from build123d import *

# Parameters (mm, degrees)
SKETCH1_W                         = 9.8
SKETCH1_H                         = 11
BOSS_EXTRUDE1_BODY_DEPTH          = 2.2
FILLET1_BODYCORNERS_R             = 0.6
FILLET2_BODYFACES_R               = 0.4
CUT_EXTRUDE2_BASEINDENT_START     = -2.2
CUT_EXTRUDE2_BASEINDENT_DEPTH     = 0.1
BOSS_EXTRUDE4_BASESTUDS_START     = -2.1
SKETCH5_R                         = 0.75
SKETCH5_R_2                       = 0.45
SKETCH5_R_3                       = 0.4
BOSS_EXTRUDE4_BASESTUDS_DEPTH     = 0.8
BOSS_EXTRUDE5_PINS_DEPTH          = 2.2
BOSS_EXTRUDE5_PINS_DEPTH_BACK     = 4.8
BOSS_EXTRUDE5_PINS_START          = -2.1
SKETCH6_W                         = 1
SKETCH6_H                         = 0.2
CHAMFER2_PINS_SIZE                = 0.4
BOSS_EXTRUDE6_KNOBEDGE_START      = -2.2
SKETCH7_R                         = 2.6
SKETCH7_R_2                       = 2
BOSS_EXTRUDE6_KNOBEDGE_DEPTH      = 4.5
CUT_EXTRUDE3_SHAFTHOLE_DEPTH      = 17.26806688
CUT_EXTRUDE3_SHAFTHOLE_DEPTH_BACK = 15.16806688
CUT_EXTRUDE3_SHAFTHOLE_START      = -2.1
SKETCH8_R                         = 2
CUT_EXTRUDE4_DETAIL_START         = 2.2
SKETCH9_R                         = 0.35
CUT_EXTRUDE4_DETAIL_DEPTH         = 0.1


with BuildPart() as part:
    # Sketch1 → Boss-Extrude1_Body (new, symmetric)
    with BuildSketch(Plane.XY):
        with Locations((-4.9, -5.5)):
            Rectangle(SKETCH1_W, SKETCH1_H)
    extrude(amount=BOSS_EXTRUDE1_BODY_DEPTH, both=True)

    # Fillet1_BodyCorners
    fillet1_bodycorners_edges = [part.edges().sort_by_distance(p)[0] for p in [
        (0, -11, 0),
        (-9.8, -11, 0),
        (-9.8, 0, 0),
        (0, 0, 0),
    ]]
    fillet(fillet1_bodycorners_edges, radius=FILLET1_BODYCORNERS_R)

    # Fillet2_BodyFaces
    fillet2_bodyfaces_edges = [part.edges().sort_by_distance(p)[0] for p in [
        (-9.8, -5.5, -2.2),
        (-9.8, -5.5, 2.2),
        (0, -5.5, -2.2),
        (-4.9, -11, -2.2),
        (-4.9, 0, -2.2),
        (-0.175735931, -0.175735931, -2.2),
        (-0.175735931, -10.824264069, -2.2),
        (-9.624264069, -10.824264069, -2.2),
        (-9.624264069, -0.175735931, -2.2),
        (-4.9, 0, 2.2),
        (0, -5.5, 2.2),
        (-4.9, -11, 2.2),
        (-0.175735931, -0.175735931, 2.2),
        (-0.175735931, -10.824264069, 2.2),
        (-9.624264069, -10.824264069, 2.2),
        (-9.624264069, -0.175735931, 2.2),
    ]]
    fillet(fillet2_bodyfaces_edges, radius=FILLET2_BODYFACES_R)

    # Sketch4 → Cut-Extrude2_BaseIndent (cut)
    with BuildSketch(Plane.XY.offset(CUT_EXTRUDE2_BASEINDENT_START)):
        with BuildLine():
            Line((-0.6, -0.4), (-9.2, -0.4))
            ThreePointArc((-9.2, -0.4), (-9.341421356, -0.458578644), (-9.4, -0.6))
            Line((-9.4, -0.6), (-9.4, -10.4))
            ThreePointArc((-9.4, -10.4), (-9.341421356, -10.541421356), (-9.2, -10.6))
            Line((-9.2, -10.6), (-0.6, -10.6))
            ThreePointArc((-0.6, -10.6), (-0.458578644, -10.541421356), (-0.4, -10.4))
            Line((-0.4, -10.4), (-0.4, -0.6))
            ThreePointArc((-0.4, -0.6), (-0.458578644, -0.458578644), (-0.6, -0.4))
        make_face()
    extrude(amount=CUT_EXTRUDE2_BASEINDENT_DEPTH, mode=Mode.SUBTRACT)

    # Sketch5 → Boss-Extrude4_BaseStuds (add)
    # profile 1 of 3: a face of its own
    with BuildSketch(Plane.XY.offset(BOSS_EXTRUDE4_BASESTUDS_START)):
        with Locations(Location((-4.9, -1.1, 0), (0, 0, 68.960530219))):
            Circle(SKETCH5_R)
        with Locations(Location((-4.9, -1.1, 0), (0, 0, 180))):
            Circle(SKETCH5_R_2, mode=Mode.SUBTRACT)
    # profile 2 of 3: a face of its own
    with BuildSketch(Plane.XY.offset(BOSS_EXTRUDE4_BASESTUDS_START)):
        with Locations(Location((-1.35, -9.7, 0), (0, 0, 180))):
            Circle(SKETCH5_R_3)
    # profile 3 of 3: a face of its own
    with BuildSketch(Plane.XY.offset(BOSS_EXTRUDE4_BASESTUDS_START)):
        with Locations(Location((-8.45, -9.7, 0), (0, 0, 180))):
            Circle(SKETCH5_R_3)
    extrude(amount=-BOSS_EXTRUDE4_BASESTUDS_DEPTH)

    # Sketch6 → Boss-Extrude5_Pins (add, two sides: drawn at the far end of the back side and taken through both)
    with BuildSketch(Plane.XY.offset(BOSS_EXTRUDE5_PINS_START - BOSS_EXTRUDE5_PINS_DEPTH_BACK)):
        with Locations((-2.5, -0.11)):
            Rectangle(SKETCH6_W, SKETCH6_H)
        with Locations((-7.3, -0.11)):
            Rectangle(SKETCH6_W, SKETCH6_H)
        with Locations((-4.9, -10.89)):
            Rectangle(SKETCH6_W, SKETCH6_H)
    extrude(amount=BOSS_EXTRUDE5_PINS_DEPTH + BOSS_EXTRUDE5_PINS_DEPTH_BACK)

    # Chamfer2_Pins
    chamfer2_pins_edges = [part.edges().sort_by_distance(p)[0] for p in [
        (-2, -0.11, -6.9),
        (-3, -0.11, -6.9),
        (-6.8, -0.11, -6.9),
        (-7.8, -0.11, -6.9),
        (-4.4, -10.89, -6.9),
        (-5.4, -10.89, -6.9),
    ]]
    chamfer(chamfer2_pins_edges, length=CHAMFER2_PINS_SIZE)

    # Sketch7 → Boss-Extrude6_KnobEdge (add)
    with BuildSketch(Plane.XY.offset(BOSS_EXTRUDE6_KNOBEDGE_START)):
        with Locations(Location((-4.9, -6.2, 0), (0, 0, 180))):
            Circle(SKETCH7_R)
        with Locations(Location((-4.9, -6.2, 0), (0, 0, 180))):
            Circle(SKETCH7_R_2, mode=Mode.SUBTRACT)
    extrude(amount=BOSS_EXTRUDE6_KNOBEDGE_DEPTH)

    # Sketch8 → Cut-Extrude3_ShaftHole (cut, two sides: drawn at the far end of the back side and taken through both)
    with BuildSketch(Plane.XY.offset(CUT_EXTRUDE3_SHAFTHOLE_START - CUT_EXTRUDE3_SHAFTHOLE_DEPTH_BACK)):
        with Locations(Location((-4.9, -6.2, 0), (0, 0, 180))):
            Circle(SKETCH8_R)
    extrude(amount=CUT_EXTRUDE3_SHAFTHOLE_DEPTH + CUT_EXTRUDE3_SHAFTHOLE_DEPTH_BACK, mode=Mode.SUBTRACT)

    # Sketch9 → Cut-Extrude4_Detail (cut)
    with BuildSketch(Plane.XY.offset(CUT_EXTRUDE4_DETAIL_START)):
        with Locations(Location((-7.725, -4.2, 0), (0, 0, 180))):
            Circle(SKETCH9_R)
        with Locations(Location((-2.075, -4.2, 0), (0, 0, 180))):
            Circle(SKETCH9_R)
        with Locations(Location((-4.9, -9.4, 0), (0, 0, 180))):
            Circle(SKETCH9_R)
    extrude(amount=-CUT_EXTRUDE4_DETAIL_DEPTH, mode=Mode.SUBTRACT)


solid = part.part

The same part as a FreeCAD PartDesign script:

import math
import FreeCAD as App
import Part
import Sketcher

V = App.Vector
Q = App.Units.Quantity


def edges_at(feature, points):
    """Names of the edges that pass closest to the given points."""
    edges = feature.Shape.Edges
    near = lambda p: min(range(len(edges)), key=lambda i: edges[i].distToShape(Part.Vertex(*p))[0])
    return sorted({f"Edge{near(p) + 1}" for p in points})


def add_polygon(sketch, points):
    """Adds a closed chain of lines whose ends are joined by coincident constraints."""
    first, n = sketch.GeometryCount, len(points)
    for a, b in zip(points, points[1:] + points[:1]):
        sketch.addGeometry(Part.LineSegment(App.Vector(*a, 0), App.Vector(*b, 0)), False)
    for i in range(n):
        sketch.addConstraint(Sketcher.Constraint("Coincident", first + i, 2, first + (i + 1) % n, 1))

doc = App.newDocument("Part")
params = doc.addObject("Spreadsheet::Sheet", "Params")
for row, (alias, value) in enumerate([
    ("sketch1_height", "11 mm"),
    ("sketch1_width", "9.8 mm"),
    ("pad1_length", "4.4 mm"),
    ("fillet_radius", "0.6 mm"),
    ("fillet2_radius", "0.4 mm"),
    ("sketch2_radius", "0.2 mm"),
    ("sketch2_width", "8.6 mm"),
    ("sketch2_height", "9.8 mm"),
    ("pocket1_length", "0.1 mm"),
    ("sketch3_diameter", "1.5 mm"),
    ("sketch3_diameter2", "0.9 mm"),
    ("sketch3_diameter3", "0.8 mm"),
    ("pad2_length", "0.8 mm"),
    ("sketch4_width", "1 mm"),
    ("sketch4_height", "0.2 mm"),
    ("pad3_length", "2.2 mm"),
    ("pad3_length2", "4.8 mm"),
    ("chamfer_size", "0.4 mm"),
    ("sketch5_diameter", "4 mm"),
    ("sketch5_diameter2", "5.2 mm"),
    ("pad4_length", "4.5 mm"),
    ("sketch6_diameter", "4 mm"),
    ("sketch7_diameter", "0.7 mm"),
    ("pocket3_length", "0.1 mm"),
], start=1):
    params.set(f"A{row}", alias)
    params.set(f"B{row}", "=" + value)
    params.setAlias(f"B{row}", alias)

body = doc.addObject("PartDesign::Body", "Body")

# Sketch on XY plane
sketch1 = doc.addObject("Sketcher::SketchObject", "Sketch")
body.addObject(sketch1)
sketch1.AttachmentSupport = (doc.XY_Plane, [""])
sketch1.MapMode = "FlatFace"
add_polygon(sketch1, [(-10, 0), (-10, -11), (0, -11), (0, 0)])  # lines 0-3
sketch1.addConstraint(Sketcher.Constraint("Vertical", 0))
sketch1.addConstraint(Sketcher.Constraint("Horizontal", 1))
sketch1.addConstraint(Sketcher.Constraint("Vertical", 2))
sketch1.addConstraint(Sketcher.Constraint("Horizontal", 3))
sketch1.addConstraint(Sketcher.Constraint("Coincident", 2, 2, -1, 1))
sketch1.addConstraint(Sketcher.Constraint("DistanceY", 0, 2, 0, 1, Q("11 mm")))
sketch1.addConstraint(Sketcher.Constraint("DistanceX", 1, 1, 1, 2, Q("9.8 mm")))
sketch1.setExpression("Constraints[9]", "Params.sketch1_height")
sketch1.setExpression("Constraints[10]", "Params.sketch1_width")
pad1 = doc.addObject("PartDesign::Pad", "Pad")
body.addObject(pad1)
pad1.Profile = sketch1
pad1.setExpression("Length", "Params.pad1_length")
pad1.Midplane = True
doc.recompute()

fillet = doc.addObject("PartDesign::Fillet", "Fillet")
body.addObject(fillet)
fillet.Base = (pad1, edges_at(pad1, [
    (0, -11, 0),
    (-9.8, -11, 0),
    (-9.8, 0, 0),
    (0, 0, 0),
]))
fillet.setExpression("Radius", "Params.fillet_radius")
doc.recompute()

fillet2 = doc.addObject("PartDesign::Fillet", "Fillet001")
body.addObject(fillet2)
fillet2.Base = (fillet, edges_at(fillet, [
    (-9.8, -5.5, -2.2),
    (-9.8, -5.5, 2.2),
    (0, -5.5, -2.2),
    (-4.9, -11, -2.2),
    (-4.9, 0, -2.2),
    (-0.176, -0.176, -2.2),
    (-0.176, -10.824, -2.2),
    (-9.624, -10.824, -2.2),
    (-9.624, -0.176, -2.2),
    (-4.9, 0, 2.2),
    (0, -5.5, 2.2),
    (-4.9, -11, 2.2),
    (-0.176, -0.176, 2.2),
    (-0.176, -10.824, 2.2),
    (-9.624, -10.824, 2.2),
    (-9.624, -0.176, 2.2),
]))
fillet2.setExpression("Radius", "Params.fillet2_radius")

# Sketch on XY plane
sketch2 = doc.addObject("Sketcher::SketchObject", "Sketch001")
body.addObject(sketch2)
sketch2.AttachmentSupport = (doc.XY_Plane, [""])
sketch2.MapMode = "FlatFace"
sketch2.AttachmentOffset = App.Placement(V(0, 0, -2.2), App.Rotation())
sketch2.addGeometry(Part.LineSegment(V(-0.6, -0.4, 0), V(-9.2, -0.4, 0)), False)
sketch2.addGeometry(Part.ArcOfCircle(Part.Circle(V(-9.2, -0.6, 0), V(0, 0, 1), 0.2), math.radians(90), math.radians(180)), False)
sketch2.addGeometry(Part.LineSegment(V(-9.4, -0.6, 0), V(-9.4, -10.4, 0)), False)
sketch2.addGeometry(Part.ArcOfCircle(Part.Circle(V(-9.2, -10.4, 0), V(0, 0, 1), 0.2), math.radians(-180), math.radians(-90)), False)
sketch2.addGeometry(Part.LineSegment(V(-9.2, -10.6, 0), V(-0.6, -10.6, 0)), False)
sketch2.addGeometry(Part.ArcOfCircle(Part.Circle(V(-0.6, -10.4, 0), V(0, 0, 1), 0.2), math.radians(-90), math.radians(0)), False)
sketch2.addGeometry(Part.LineSegment(V(-0.4, -10.4, 0), V(-0.4, -0.6, 0)), False)
sketch2.addGeometry(Part.ArcOfCircle(Part.Circle(V(-0.6, -0.6, 0), V(0, 0, 1), 0.2), math.radians(0), math.radians(90)), False)
sketch2.addConstraint(Sketcher.Constraint("Tangent", 0, 2, 1, 1))
sketch2.addConstraint(Sketcher.Constraint("Tangent", 1, 2, 2, 1))
sketch2.addConstraint(Sketcher.Constraint("Tangent", 2, 2, 3, 1))
sketch2.addConstraint(Sketcher.Constraint("Tangent", 3, 2, 4, 1))
sketch2.addConstraint(Sketcher.Constraint("Tangent", 4, 2, 5, 1))
sketch2.addConstraint(Sketcher.Constraint("Tangent", 5, 2, 6, 1))
sketch2.addConstraint(Sketcher.Constraint("Tangent", 6, 2, 7, 1))
sketch2.addConstraint(Sketcher.Constraint("Tangent", 7, 2, 0, 1))
sketch2.addConstraint(Sketcher.Constraint("Horizontal", 0))
sketch2.addConstraint(Sketcher.Constraint("Vertical", 2))
sketch2.addConstraint(Sketcher.Constraint("Horizontal", 4))
sketch2.addConstraint(Sketcher.Constraint("Vertical", 6))
sketch2.addConstraint(Sketcher.Constraint("Equal", 1, 3))
sketch2.addConstraint(Sketcher.Constraint("Equal", 3, 5))
sketch2.addConstraint(Sketcher.Constraint("Equal", 5, 7))
sketch2.addConstraint(Sketcher.Constraint("Radius", 1, Q("0.2 mm")))
sketch2.addConstraint(Sketcher.Constraint("DistanceX", 0, 2, 0, 1, Q("8.6 mm")))
sketch2.addConstraint(Sketcher.Constraint("DistanceY", 2, 2, 2, 1, Q("9.8 mm")))
sketch2.addConstraint(Sketcher.Constraint("DistanceX", 1, 3, -1, 1, Q("9.2 mm")))
sketch2.addConstraint(Sketcher.Constraint("DistanceY", 1, 3, -1, 1, Q("0.6 mm")))
sketch2.setExpression("Constraints[15]", "Params.sketch2_radius")
sketch2.setExpression("Constraints[16]", "Params.sketch2_width")
sketch2.setExpression("Constraints[17]", "Params.sketch2_height")
pocket1 = doc.addObject("PartDesign::Pocket", "Pocket")
body.addObject(pocket1)
pocket1.Profile = sketch2
pocket1.setExpression("Length", "Params.pocket1_length")
pocket1.Reversed = True

# Sketch on XY plane
sketch3 = doc.addObject("Sketcher::SketchObject", "Sketch002")
body.addObject(sketch3)
sketch3.AttachmentSupport = (doc.XY_Plane, [""])
sketch3.MapMode = "FlatFace"
sketch3.AttachmentOffset = App.Placement(V(0, 0, -2.1), App.Rotation())
sketch3.addGeometry(Part.Circle(V(-4.9, -1.1, 0), V(0, 0, 1), 0.75), False)
sketch3.addGeometry(Part.Circle(V(-4.9, -1.1, 0), V(0, 0, 1), 0.45), False)
sketch3.addGeometry(Part.Circle(V(-1.35, -9.7, 0), V(0, 0, 1), 0.4), False)
sketch3.addGeometry(Part.Circle(V(-8.45, -9.7, 0), V(0, 0, 1), 0.4), False)
sketch3.addConstraint(Sketcher.Constraint("Coincident", 1, 3, 0, 3))
sketch3.addConstraint(Sketcher.Constraint("Equal", 2, 3))
sketch3.addConstraint(Sketcher.Constraint("Horizontal", 2, 3, 3, 3))
sketch3.addConstraint(Sketcher.Constraint("Diameter", 0, Q("1.5 mm")))
sketch3.addConstraint(Sketcher.Constraint("Diameter", 1, Q("0.9 mm")))
sketch3.addConstraint(Sketcher.Constraint("Diameter", 2, Q("0.8 mm")))
sketch3.addConstraint(Sketcher.Constraint("DistanceX", 0, 3, -1, 1, Q("4.9 mm")))
sketch3.addConstraint(Sketcher.Constraint("DistanceY", 0, 3, -1, 1, Q("1.1 mm")))
sketch3.addConstraint(Sketcher.Constraint("DistanceY", 2, 3, -1, 1, Q("9.7 mm")))
sketch3.addConstraint(Sketcher.Constraint("DistanceX", 3, 3, 2, 3, Q("7.1 mm")))
sketch3.addConstraint(Sketcher.Constraint("DistanceX", 2, 3, -1, 1, Q("1.35 mm")))
sketch3.setExpression("Constraints[3]", "Params.sketch3_diameter")
sketch3.setExpression("Constraints[4]", "Params.sketch3_diameter2")
sketch3.setExpression("Constraints[5]", "Params.sketch3_diameter3")
pad2 = doc.addObject("PartDesign::Pad", "Pad001")
body.addObject(pad2)
pad2.Profile = sketch3
pad2.setExpression("Length", "Params.pad2_length")
pad2.Reversed = True

# Sketch on XY plane
sketch4 = doc.addObject("Sketcher::SketchObject", "Sketch003")
body.addObject(sketch4)
sketch4.AttachmentSupport = (doc.XY_Plane, [""])
sketch4.MapMode = "FlatFace"
sketch4.AttachmentOffset = App.Placement(V(0, 0, -2.1), App.Rotation())
add_polygon(sketch4, [(-3, -0.01), (-3, -0.21), (-2, -0.21), (-2, -0.01)])  # lines 0-3
add_polygon(sketch4, [(-7.8, -0.01), (-7.8, -0.21), (-6.8, -0.21), (-6.8, -0.01)])  # lines 4-7
add_polygon(sketch4, [(-5.4, -10.79), (-5.4, -10.99), (-4.4, -10.99), (-4.4, -10.79)])  # lines 8-11
sketch4.addConstraint(Sketcher.Constraint("Vertical", 0))
sketch4.addConstraint(Sketcher.Constraint("Horizontal", 1))
sketch4.addConstraint(Sketcher.Constraint("Vertical", 2))
sketch4.addConstraint(Sketcher.Constraint("Horizontal", 3))
sketch4.addConstraint(Sketcher.Constraint("Vertical", 4))
sketch4.addConstraint(Sketcher.Constraint("Horizontal", 5))
sketch4.addConstraint(Sketcher.Constraint("Vertical", 6))
sketch4.addConstraint(Sketcher.Constraint("Horizontal", 7))
sketch4.addConstraint(Sketcher.Constraint("Vertical", 8))
sketch4.addConstraint(Sketcher.Constraint("Horizontal", 9))
sketch4.addConstraint(Sketcher.Constraint("Vertical", 10))
sketch4.addConstraint(Sketcher.Constraint("Horizontal", 11))
sketch4.addConstraint(Sketcher.Constraint("Horizontal", 1, 2, 4, 2))
sketch4.addConstraint(Sketcher.Constraint("Horizontal", 3, 2, 6, 2))
sketch4.addConstraint(Sketcher.Constraint("Equal", 3, 5))
sketch4.addConstraint(Sketcher.Constraint("Equal", 7, 9))
sketch4.addConstraint(Sketcher.Constraint("Equal", 6, 8))
sketch4.addConstraint(Sketcher.Constraint("DistanceX", 1, 1, 1, 2, Q("1 mm")))
sketch4.addConstraint(Sketcher.Constraint("DistanceY", 0, 2, 0, 1, Q("0.2 mm")))
sketch4.addConstraint(Sketcher.Constraint("DistanceX", 0, 2, -1, 1, Q("3 mm")))
sketch4.addConstraint(Sketcher.Constraint("DistanceX", 4, 2, -1, 1, Q("7.8 mm")))
sketch4.addConstraint(Sketcher.Constraint("DistanceX", 8, 2, -1, 1, Q("5.4 mm")))
sketch4.addConstraint(Sketcher.Constraint("DistanceY", 0, 2, -1, 1, Q("0.21 mm")))
sketch4.addConstraint(Sketcher.Constraint("DistanceY", 8, 2, -1, 1, Q("10.99 mm")))
sketch4.setExpression("Constraints[29]", "Params.sketch4_width")
sketch4.setExpression("Constraints[30]", "Params.sketch4_height")
pad3 = doc.addObject("PartDesign::Pad", "Pad002")
body.addObject(pad3)
pad3.Profile = sketch4
pad3.Type = "TwoLengths"
pad3.setExpression("Length", "Params.pad3_length")
pad3.setExpression("Length2", "Params.pad3_length2")
doc.recompute()

chamfer = doc.addObject("PartDesign::Chamfer", "Chamfer")
body.addObject(chamfer)
chamfer.Base = (pad3, edges_at(pad3, [
    (-2, -0.11, -6.9),
    (-3, -0.11, -6.9),
    (-6.8, -0.11, -6.9),
    (-7.8, -0.11, -6.9),
    (-4.4, -10.89, -6.9),
    (-5.4, -10.89, -6.9),
]))
chamfer.setExpression("Size", "Params.chamfer_size")

# Sketch on XY plane
sketch5 = doc.addObject("Sketcher::SketchObject", "Sketch004")
body.addObject(sketch5)
sketch5.AttachmentSupport = (doc.XY_Plane, [""])
sketch5.MapMode = "FlatFace"
sketch5.AttachmentOffset = App.Placement(V(0, 0, -2.2), App.Rotation())
sketch5.addGeometry(Part.Circle(V(-4.9, -6.2, 0), V(0, 0, 1), 2.6), False)
sketch5.addGeometry(Part.Circle(V(-4.9, -6.2, 0), V(0, 0, 1), 2), False)
sketch5.addConstraint(Sketcher.Constraint("Coincident", 1, 3, 0, 3))
sketch5.addConstraint(Sketcher.Constraint("Diameter", 1, Q("4 mm")))
sketch5.addConstraint(Sketcher.Constraint("Diameter", 0, Q("5.2 mm")))
sketch5.addConstraint(Sketcher.Constraint("DistanceX", 0, 3, -1, 1, Q("4.9 mm")))
sketch5.addConstraint(Sketcher.Constraint("DistanceY", 0, 3, -1, 1, Q("6.2 mm")))
sketch5.setExpression("Constraints[1]", "Params.sketch5_diameter")
sketch5.setExpression("Constraints[2]", "Params.sketch5_diameter2")
pad4 = doc.addObject("PartDesign::Pad", "Pad003")
body.addObject(pad4)
pad4.Profile = sketch5
pad4.setExpression("Length", "Params.pad4_length")

# Sketch on XY plane
sketch6 = doc.addObject("Sketcher::SketchObject", "Sketch005")
body.addObject(sketch6)
sketch6.AttachmentSupport = (doc.XY_Plane, [""])
sketch6.MapMode = "FlatFace"
sketch6.AttachmentOffset = App.Placement(V(0, 0, -2.1), App.Rotation())
sketch6.addGeometry(Part.Circle(V(-4.9, -6.2, 0), V(0, 0, 1), 2), False)
sketch6.addConstraint(Sketcher.Constraint("Diameter", 0, Q("4 mm")))
sketch6.addConstraint(Sketcher.Constraint("DistanceX", 0, 3, -1, 1, Q("4.9 mm")))
sketch6.addConstraint(Sketcher.Constraint("DistanceY", 0, 3, -1, 1, Q("6.2 mm")))
sketch6.setExpression("Constraints[0]", "Params.sketch6_diameter")
pocket2 = doc.addObject("PartDesign::Pocket", "Pocket001")
body.addObject(pocket2)
pocket2.Profile = sketch6
pocket2.Type = "ThroughAll"
pocket2.Midplane = True

# Sketch on XY plane
sketch7 = doc.addObject("Sketcher::SketchObject", "Sketch006")
body.addObject(sketch7)
sketch7.AttachmentSupport = (doc.XY_Plane, [""])
sketch7.MapMode = "FlatFace"
sketch7.AttachmentOffset = App.Placement(V(0, 0, 2.2), App.Rotation())
sketch7.addGeometry(Part.Circle(V(-7.72, -4.2, 0), V(0, 0, 1), 0.35), False)
sketch7.addGeometry(Part.Circle(V(-2.08, -4.2, 0), V(0, 0, 1), 0.35), False)
sketch7.addGeometry(Part.Circle(V(-4.9, -9.4, 0), V(0, 0, 1), 0.35), False)
sketch7.addConstraint(Sketcher.Constraint("Equal", 0, 1))
sketch7.addConstraint(Sketcher.Constraint("Equal", 1, 2))
sketch7.addConstraint(Sketcher.Constraint("Horizontal", 0, 3, 1, 3))
sketch7.addConstraint(Sketcher.Constraint("Diameter", 0, Q("0.7 mm")))
sketch7.addConstraint(Sketcher.Constraint("DistanceY", 0, 3, -1, 1, Q("4.2 mm")))
sketch7.addConstraint(Sketcher.Constraint("DistanceX", 2, 3, -1, 1, Q("4.9 mm")))
sketch7.addConstraint(Sketcher.Constraint("DistanceY", 2, 3, -1, 1, Q("9.4 mm")))
sketch7.addConstraint(Sketcher.Constraint("DistanceX", 0, 3, 1, 3, Q("5.65 mm")))
sketch7.addConstraint(Sketcher.Constraint("DistanceX", 0, 3, -1, 1, Q("7.725 mm")))
sketch7.setExpression("Constraints[3]", "Params.sketch7_diameter")
pocket3 = doc.addObject("PartDesign::Pocket", "Pocket002")
body.addObject(pocket3)
pocket3.Profile = sketch7
pocket3.setExpression("Length", "Params.pocket3_length")

doc.recompute()
